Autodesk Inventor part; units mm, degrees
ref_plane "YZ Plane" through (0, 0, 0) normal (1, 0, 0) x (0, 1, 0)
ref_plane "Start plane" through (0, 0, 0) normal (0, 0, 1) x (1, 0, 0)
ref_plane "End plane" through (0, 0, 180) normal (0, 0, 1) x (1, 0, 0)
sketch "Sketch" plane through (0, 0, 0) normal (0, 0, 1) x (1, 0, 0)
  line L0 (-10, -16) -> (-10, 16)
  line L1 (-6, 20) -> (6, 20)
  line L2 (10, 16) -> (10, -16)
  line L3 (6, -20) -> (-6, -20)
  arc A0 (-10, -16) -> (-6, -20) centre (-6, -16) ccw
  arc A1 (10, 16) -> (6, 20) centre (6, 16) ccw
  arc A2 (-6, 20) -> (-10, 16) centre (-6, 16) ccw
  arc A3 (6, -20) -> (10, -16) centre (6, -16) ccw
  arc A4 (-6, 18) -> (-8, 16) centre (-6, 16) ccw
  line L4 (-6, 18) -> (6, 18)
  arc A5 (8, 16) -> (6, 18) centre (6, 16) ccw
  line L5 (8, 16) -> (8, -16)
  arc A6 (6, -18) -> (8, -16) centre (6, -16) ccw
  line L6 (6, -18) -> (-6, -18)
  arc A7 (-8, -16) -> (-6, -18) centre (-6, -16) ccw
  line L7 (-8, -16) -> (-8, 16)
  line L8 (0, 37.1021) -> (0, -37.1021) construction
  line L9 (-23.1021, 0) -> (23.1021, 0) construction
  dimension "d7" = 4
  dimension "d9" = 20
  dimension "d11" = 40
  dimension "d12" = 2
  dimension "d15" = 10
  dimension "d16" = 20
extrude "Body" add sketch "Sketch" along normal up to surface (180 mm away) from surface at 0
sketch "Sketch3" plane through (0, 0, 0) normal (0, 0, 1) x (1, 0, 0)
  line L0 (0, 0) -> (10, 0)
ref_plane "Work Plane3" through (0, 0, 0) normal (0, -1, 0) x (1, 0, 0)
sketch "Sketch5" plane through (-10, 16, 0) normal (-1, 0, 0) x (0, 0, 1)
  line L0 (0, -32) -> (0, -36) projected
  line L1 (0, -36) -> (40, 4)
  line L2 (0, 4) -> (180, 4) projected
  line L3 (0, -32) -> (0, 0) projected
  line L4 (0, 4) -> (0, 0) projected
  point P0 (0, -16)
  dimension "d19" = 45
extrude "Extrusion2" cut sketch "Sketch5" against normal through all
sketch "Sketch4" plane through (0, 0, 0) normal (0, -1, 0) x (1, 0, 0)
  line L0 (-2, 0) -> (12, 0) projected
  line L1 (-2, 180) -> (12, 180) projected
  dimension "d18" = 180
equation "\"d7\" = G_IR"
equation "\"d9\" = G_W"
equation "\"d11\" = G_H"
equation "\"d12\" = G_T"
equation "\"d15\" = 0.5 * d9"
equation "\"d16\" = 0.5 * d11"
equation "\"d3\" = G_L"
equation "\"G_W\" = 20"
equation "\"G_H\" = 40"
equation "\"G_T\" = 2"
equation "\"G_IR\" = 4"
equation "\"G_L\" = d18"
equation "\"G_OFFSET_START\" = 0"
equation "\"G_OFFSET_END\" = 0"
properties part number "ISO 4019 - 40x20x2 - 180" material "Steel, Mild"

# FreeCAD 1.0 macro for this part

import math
import FreeCAD as App
import Part
import Sketcher

V = App.Vector

doc = App.newDocument("Part")
body = doc.addObject("PartDesign::Body", "Body")

sketch1 = body.newObject("Sketcher::SketchObject", "Sketch")
sketch1.AttachmentSupport = (doc.getObject("XY_Plane"), [""])
sketch1.MapMode = "FlatFace"
sketch1.addGeometry(Part.LineSegment(V(-10, 16, 0), V(-10, -16, 0)), False)
sketch1.addGeometry(Part.ArcOfCircle(Part.Circle(V(-6, -16, 0), V(0, 0, 1), 4), math.radians(180), math.radians(270)), False)
sketch1.addGeometry(Part.LineSegment(V(-6, -20, 0), V(6, -20, 0)), False)
sketch1.addGeometry(Part.ArcOfCircle(Part.Circle(V(6, -16, 0), V(0, 0, 1), 4), math.radians(-90), math.radians(0)), False)
sketch1.addGeometry(Part.LineSegment(V(10, -16, 0), V(10, 16, 0)), False)
sketch1.addGeometry(Part.ArcOfCircle(Part.Circle(V(6, 16, 0), V(0, 0, 1), 4), math.radians(0), math.radians(90)), False)
sketch1.addGeometry(Part.LineSegment(V(6, 20, 0), V(-6, 20, 0)), False)
sketch1.addGeometry(Part.ArcOfCircle(Part.Circle(V(-6, 16, 0), V(0, 0, 1), 4), math.radians(90), math.radians(180)), False)
sketch1.addGeometry(Part.ArcOfCircle(Part.Circle(V(-6, 16, 0), V(0, 0, 1), 2), math.radians(90), math.radians(180)), False)
sketch1.addGeometry(Part.LineSegment(V(-6, 18, 0), V(6, 18, 0)), False)
sketch1.addGeometry(Part.ArcOfCircle(Part.Circle(V(6, 16, 0), V(0, 0, 1), 2), math.radians(0), math.radians(90)), False)
sketch1.addGeometry(Part.LineSegment(V(8, 16, 0), V(8, -16, 0)), False)
sketch1.addGeometry(Part.ArcOfCircle(Part.Circle(V(6, -16, 0), V(0, 0, 1), 2), math.radians(-90), math.radians(0)), False)
sketch1.addGeometry(Part.LineSegment(V(6, -18, 0), V(-6, -18, 0)), False)
sketch1.addGeometry(Part.ArcOfCircle(Part.Circle(V(-6, -16, 0), V(0, 0, 1), 2), math.radians(180), math.radians(270)), False)
sketch1.addGeometry(Part.LineSegment(V(-8, -16, 0), V(-8, 16, 0)), False)
sketch1.addConstraint(Sketcher.Constraint("Tangent", 0, 2, 1, 1))
sketch1.addConstraint(Sketcher.Constraint("Tangent", 1, 2, 2, 1))
sketch1.addConstraint(Sketcher.Constraint("Tangent", 2, 2, 3, 1))
sketch1.addConstraint(Sketcher.Constraint("Tangent", 3, 2, 4, 1))
sketch1.addConstraint(Sketcher.Constraint("Tangent", 4, 2, 5, 1))
sketch1.addConstraint(Sketcher.Constraint("Tangent", 5, 2, 6, 1))
sketch1.addConstraint(Sketcher.Constraint("Tangent", 6, 2, 7, 1))
sketch1.addConstraint(Sketcher.Constraint("Tangent", 7, 2, 0, 1))
sketch1.addConstraint(Sketcher.Constraint("Tangent", 8, 1, 9, 1))
sketch1.addConstraint(Sketcher.Constraint("Tangent", 9, 2, 10, 2))
sketch1.addConstraint(Sketcher.Constraint("Tangent", 10, 1, 11, 1))
sketch1.addConstraint(Sketcher.Constraint("Tangent", 11, 2, 12, 2))
sketch1.addConstraint(Sketcher.Constraint("Tangent", 12, 1, 13, 1))
sketch1.addConstraint(Sketcher.Constraint("Tangent", 13, 2, 14, 2))
sketch1.addConstraint(Sketcher.Constraint("Tangent", 14, 1, 15, 1))
sketch1.addConstraint(Sketcher.Constraint("Tangent", 15, 2, 8, 2))
sketch1.addConstraint(Sketcher.Constraint("Vertical", 0))
sketch1.addConstraint(Sketcher.Constraint("Horizontal", 2))
sketch1.addConstraint(Sketcher.Constraint("Vertical", 4))
sketch1.addConstraint(Sketcher.Constraint("Horizontal", 6))
sketch1.addConstraint(Sketcher.Constraint("Horizontal", 9))
sketch1.addConstraint(Sketcher.Constraint("Vertical", 11))
sketch1.addConstraint(Sketcher.Constraint("Horizontal", 13))
sketch1.addConstraint(Sketcher.Constraint("Vertical", 15))
sketch1.addConstraint(Sketcher.Constraint("Coincident", 8, 3, 7, 3))
sketch1.addConstraint(Sketcher.Constraint("Coincident", 10, 3, 5, 3))
sketch1.addConstraint(Sketcher.Constraint("Coincident", 12, 3, 3, 3))
sketch1.addConstraint(Sketcher.Constraint("Equal", 1, 3))
sketch1.addConstraint(Sketcher.Constraint("Equal", 3, 5))
sketch1.addConstraint(Sketcher.Constraint("Equal", 5, 7))
sketch1.addConstraint(Sketcher.Constraint("Equal", 12, 14))
sketch1.addConstraint(Sketcher.Constraint("Symmetric", 1, 3, 5, 3, -1, 1))
sketch1.addConstraint(Sketcher.Constraint("Radius", 1, 4.0))
sketch1.addConstraint(Sketcher.Constraint("Radius", 8, 2.0))
sketch1.addConstraint(Sketcher.Constraint("DistanceX", 0, 2, -1, 1, 10.0))
sketch1.addConstraint(Sketcher.Constraint("DistanceY", 1, 2, -1, 1, 20.0))
pad1 = body.newObject("PartDesign::Pad", "Pad")
pad1.Profile = sketch1
pad1.Length = 180

sketch2 = body.newObject("Sketcher::SketchObject", "Sketch001")
sketch2.AttachmentSupport = (doc.getObject("YZ_Plane"), [""])
sketch2.MapMode = "FlatFace"
sketch2.AttachmentOffset = App.Placement(V(0, 0, -10), App.Rotation())
sketch2.addGeometry(Part.LineSegment(V(20, 0, 0), V(-20, 0, 0)), False)
sketch2.addGeometry(Part.LineSegment(V(-20, 0, 0), V(20, 40, 0)), False)
sketch2.addGeometry(Part.LineSegment(V(20, 40, 0), V(20, 0, 0)), False)
sketch2.addConstraint(Sketcher.Constraint("Coincident", 0, 2, 1, 1))
sketch2.addConstraint(Sketcher.Constraint("Coincident", 1, 2, 2, 1))
sketch2.addConstraint(Sketcher.Constraint("Coincident", 2, 2, 0, 1))
sketch2.addConstraint(Sketcher.Constraint("Horizontal", 0))
sketch2.addConstraint(Sketcher.Constraint("Vertical", 2))
sketch2.addConstraint(Sketcher.Constraint("Symmetric", 0, 2, 2, 2, -1, 1))
sketch2.addConstraint(Sketcher.Constraint("Equal", 0, 2))
sketch2.addConstraint(Sketcher.Constraint("DistanceX", 0, 2, 0, 1, 40.0))
pocket1 = body.newObject("PartDesign::Pocket", "Pocket")
pocket1.Profile = sketch2
pocket1.Type = "ThroughAll"
pocket1.Reversed = True

doc.recompute()
